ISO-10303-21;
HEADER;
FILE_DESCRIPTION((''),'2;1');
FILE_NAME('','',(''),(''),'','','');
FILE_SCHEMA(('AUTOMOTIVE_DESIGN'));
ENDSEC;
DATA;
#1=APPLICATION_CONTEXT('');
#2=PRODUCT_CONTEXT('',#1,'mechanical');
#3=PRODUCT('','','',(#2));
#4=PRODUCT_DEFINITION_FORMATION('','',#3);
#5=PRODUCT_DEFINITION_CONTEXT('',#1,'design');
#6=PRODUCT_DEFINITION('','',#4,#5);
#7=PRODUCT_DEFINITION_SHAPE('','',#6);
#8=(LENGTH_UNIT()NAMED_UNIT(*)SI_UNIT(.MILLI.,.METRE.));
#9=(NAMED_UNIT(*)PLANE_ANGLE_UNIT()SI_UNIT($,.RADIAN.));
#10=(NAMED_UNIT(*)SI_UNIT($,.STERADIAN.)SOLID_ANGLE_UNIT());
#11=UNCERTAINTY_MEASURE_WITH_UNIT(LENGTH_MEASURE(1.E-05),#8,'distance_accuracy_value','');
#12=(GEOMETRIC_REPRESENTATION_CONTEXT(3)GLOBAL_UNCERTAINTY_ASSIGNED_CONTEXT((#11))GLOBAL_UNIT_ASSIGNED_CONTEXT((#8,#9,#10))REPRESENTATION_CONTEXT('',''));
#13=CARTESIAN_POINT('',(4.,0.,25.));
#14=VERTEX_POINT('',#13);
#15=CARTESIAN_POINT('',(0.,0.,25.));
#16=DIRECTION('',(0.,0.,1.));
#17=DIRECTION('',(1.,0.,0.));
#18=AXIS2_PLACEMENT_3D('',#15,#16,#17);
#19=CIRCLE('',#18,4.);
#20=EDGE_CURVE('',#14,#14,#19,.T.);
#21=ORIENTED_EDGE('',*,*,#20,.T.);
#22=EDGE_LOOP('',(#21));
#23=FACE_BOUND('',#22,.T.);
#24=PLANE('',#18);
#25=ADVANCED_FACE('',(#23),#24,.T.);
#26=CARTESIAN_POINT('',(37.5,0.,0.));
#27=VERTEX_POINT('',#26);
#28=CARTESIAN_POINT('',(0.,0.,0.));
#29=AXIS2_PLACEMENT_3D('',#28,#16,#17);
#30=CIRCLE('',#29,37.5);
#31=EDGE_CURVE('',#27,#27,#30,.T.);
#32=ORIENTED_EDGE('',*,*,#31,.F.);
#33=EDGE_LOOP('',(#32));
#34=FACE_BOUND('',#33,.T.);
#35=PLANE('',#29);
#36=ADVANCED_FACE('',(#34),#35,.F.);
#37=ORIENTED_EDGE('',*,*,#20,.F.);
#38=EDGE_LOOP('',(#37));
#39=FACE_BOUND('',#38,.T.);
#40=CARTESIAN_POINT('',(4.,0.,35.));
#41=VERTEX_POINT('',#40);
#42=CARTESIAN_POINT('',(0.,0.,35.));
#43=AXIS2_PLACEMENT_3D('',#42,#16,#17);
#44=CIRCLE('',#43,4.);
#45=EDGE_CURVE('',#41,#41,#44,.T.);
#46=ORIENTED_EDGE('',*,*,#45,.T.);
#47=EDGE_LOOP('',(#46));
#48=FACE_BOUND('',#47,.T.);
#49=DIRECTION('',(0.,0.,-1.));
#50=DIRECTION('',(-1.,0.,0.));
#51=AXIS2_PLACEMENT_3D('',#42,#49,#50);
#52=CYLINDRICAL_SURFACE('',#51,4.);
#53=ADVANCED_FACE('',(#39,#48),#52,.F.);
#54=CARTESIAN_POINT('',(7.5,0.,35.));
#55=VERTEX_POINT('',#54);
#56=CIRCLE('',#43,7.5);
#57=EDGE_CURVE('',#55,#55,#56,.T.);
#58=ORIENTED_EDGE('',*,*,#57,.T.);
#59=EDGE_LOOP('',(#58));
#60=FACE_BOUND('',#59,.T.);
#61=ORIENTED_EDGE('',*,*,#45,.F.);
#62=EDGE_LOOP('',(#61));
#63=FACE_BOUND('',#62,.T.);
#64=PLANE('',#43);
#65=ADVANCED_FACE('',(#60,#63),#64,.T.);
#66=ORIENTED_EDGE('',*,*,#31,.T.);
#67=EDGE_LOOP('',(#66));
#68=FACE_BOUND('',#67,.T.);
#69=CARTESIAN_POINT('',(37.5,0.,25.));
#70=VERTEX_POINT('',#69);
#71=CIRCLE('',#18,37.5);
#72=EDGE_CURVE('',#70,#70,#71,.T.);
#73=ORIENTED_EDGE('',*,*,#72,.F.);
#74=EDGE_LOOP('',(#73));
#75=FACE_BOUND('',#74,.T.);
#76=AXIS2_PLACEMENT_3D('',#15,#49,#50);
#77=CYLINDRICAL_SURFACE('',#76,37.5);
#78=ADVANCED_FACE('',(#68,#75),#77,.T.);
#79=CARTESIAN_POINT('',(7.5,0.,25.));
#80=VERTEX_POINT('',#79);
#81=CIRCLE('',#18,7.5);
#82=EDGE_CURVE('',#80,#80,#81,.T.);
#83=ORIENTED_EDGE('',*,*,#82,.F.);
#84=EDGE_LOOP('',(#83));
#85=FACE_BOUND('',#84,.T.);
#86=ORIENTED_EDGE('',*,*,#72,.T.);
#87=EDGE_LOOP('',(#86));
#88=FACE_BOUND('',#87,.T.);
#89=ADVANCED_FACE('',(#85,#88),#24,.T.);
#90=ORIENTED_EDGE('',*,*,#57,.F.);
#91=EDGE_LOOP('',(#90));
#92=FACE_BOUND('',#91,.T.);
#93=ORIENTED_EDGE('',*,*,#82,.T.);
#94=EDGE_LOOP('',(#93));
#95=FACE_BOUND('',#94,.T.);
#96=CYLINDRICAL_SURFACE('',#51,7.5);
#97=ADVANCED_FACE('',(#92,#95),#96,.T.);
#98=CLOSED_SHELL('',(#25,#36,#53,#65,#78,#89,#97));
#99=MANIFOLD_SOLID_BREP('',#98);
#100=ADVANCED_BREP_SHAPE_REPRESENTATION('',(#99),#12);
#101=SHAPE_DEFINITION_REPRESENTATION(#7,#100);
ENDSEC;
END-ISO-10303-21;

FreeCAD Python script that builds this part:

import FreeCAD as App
import Part
import Sketcher

doc = App.newDocument("Part")
body = doc.addObject("PartDesign::Body", "Body")

sketch1 = body.newObject("Sketcher::SketchObject", "Sketch")
sketch1.AttachmentSupport = (doc.getObject("XY_Plane"), [""])
sketch1.MapMode = "FlatFace"
sketch1.addGeometry(Part.Circle(App.Vector(0, 0, 0), App.Vector(0, 0, 1), 38), False)
sketch1.addConstraint([
    Sketcher.Constraint("Coincident", 0, 3, -1, 1),
    Sketcher.Constraint("Diameter", 0, 75.0),
])
pad1 = body.newObject("PartDesign::Pad", "Pad")
pad1.Profile = sketch1
pad1.Length = 25

sketch2 = body.newObject("Sketcher::SketchObject", "Sketch001")
sketch2.AttachmentSupport = (doc.getObject("XY_Plane"), [""])
sketch2.MapMode = "FlatFace"
sketch2.AttachmentOffset = App.Placement(App.Vector(0, 0, 25), App.Rotation())
sketch2.addGeometry([
    Part.Circle(App.Vector(0, 0, 0), App.Vector(0, 0, 1), 7.5),
    Part.Circle(App.Vector(0, 0, 0), App.Vector(0, 0, 1), 4),
], False)
sketch2.addConstraint([
    Sketcher.Constraint("Coincident", 0, 3, -1, 1),
    Sketcher.Constraint("Coincident", 1, 3, -1, 1),
    Sketcher.Constraint("Diameter", 0, 15.0),
    Sketcher.Constraint("Diameter", 1, 8.0),
])
pad2 = body.newObject("PartDesign::Pad", "Pad001")
pad2.Profile = sketch2
pad2.Length = 10

doc.recompute()
